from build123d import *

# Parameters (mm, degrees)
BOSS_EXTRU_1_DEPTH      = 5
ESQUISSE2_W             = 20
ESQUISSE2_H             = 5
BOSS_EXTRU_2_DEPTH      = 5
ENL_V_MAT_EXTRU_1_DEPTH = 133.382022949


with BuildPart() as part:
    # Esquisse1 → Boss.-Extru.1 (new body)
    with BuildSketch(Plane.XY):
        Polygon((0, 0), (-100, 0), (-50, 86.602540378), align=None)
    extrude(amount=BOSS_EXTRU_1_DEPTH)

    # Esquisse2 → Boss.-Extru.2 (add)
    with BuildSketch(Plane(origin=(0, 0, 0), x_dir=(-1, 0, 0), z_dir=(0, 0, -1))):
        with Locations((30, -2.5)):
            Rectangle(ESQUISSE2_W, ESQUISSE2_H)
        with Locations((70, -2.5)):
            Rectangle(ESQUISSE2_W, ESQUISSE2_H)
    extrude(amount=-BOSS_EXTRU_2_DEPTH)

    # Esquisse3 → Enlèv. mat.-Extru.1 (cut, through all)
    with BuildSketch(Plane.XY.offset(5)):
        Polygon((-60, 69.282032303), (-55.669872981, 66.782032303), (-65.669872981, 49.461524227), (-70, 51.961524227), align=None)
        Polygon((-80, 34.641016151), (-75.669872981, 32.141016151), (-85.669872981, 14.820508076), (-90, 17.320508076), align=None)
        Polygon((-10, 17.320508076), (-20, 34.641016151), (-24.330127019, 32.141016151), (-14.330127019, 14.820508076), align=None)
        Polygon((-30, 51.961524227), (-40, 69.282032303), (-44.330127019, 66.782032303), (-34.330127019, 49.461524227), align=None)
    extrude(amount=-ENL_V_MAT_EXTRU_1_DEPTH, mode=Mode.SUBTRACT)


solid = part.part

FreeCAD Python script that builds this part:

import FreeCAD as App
import Part
import Sketcher
Q = App.Units.Quantity


def add_polygon(sketch, points):
    """Adds a closed chain of lines whose ends are joined by coincident constraints."""
    first, n = sketch.GeometryCount, len(points)
    for a, b in zip(points, points[1:] + points[:1]):
        sketch.addGeometry(Part.LineSegment(App.Vector(*a, 0), App.Vector(*b, 0)), False)
    for i in range(n):
        sketch.addConstraint(Sketcher.Constraint("Coincident", first + i, 2, first + (i + 1) % n, 1))

doc = App.newDocument("Part")
params = doc.addObject("Spreadsheet::Sheet", "Params")
for row, (alias, value) in enumerate([
    ("sketch1_width", "100 mm"),
    ("pad1_length", "5 mm"),
    ("sketch2_width", "20 mm"),
    ("sketch2_height", "5 mm"),
    ("pad2_length", "5 mm"),
    ("sketch3_length", "5 mm"),
    ("sketch3_length2", "20 mm"),
], start=1):
    params.set(f"A{row}", alias)
    params.set(f"B{row}", "=" + value)
    params.setAlias(f"B{row}", alias)

body = doc.addObject("PartDesign::Body", "Body")

# Sketch on XY plane
sketch1 = body.newObject("Sketcher::SketchObject", "Sketch")
sketch1.AttachmentSupport = (doc.getObject("XY_Plane"), [""])
sketch1.MapMode = "FlatFace"
add_polygon(sketch1, [(-100, 0), (0, 0), (-50, 87)])  # lines 0-2
sketch1.addConstraint([
    Sketcher.Constraint("Horizontal", 0),
    Sketcher.Constraint("Coincident", 0, 2, -1, 1),
    Sketcher.Constraint("Equal", 1, 2),
    Sketcher.Constraint("DistanceX", 0, 1, 0, 2, 100.0),
    Sketcher.Constraint("Angle", 1, Q("120 deg")),
])
sketch1.setExpression("Constraints[6]", "Params.sketch1_width")
pad1 = body.newObject("PartDesign::Pad", "Pad")
pad1.Profile = sketch1
pad1.setExpression("Length", "Params.pad1_length")

# Sketch on XY plane
sketch2 = body.newObject("Sketcher::SketchObject", "Sketch001")
sketch2.AttachmentSupport = (doc.getObject("XY_Plane"), [""])
sketch2.MapMode = "FlatFace"
add_polygon(sketch2, [(-20, 0), (-20, -5), (-40, -5), (-40, 0)])  # lines 0-3
add_polygon(sketch2, [(-60, 0), (-60, -5), (-80, -5), (-80, 0)])  # lines 4-7
sketch2.addConstraint([
    Sketcher.Constraint("Vertical", 0),
    Sketcher.Constraint("Horizontal", 1),
    Sketcher.Constraint("Vertical", 2),
    Sketcher.Constraint("Horizontal", 3),
    Sketcher.Constraint("Vertical", 4),
    Sketcher.Constraint("Horizontal", 5),
    Sketcher.Constraint("Vertical", 6),
    Sketcher.Constraint("Horizontal", 7),
    Sketcher.Constraint("PointOnObject", 2, 2, -1),
    Sketcher.Constraint("PointOnObject", 6, 2, -1),
    Sketcher.Constraint("Horizontal", 1, 2, 4, 2),
    Sketcher.Constraint("Equal", 3, 5),
    Sketcher.Constraint("DistanceX", 1, 2, 1, 1, 20.0),
    Sketcher.Constraint("DistanceY", 0, 2, 0, 1, 5.0),
    Sketcher.Constraint("DistanceX", 0, 2, -1, 1, 20.0),
    Sketcher.Constraint("DistanceX", 4, 2, -1, 1, 60.0),
])
sketch2.setExpression("Constraints[20]", "Params.sketch2_width")
sketch2.setExpression("Constraints[21]", "Params.sketch2_height")
pad2 = body.newObject("PartDesign::Pad", "Pad001")
pad2.Profile = sketch2
pad2.setExpression("Length", "Params.pad2_length")

# Sketch on XY plane
sketch3 = body.newObject("Sketcher::SketchObject", "Sketch002")
sketch3.AttachmentSupport = (doc.getObject("XY_Plane"), [""])
sketch3.MapMode = "FlatFace"
sketch3.AttachmentOffset = App.Placement(App.Vector(0, 0, 5), App.Rotation())
add_polygon(sketch3, [(-56, 67), (-60, 69), (-70, 52), (-66, 49)])  # lines 0-3
add_polygon(sketch3, [(-76, 32), (-80, 35), (-90, 17), (-86, 15)])  # lines 4-7
add_polygon(sketch3, [(-10, 17), (-20, 35), (-24, 32), (-14, 15)])  # lines 8-11
add_polygon(sketch3, [(-30, 52), (-40, 69), (-44, 67), (-34, 49)])  # lines 12-15
sketch3.addConstraint([
    Sketcher.Constraint("Perpendicular", 0, 1),
    Sketcher.Constraint("Perpendicular", 1, 2),
    Sketcher.Constraint("Perpendicular", 2, 3),
    Sketcher.Constraint("Perpendicular", 3, 4),
    Sketcher.Constraint("Perpendicular", 4, 5),
    Sketcher.Constraint("Perpendicular", 5, 6),
    Sketcher.Constraint("Perpendicular", 6, 7),
    Sketcher.Constraint("Perpendicular", 8, 9),
    Sketcher.Constraint("Perpendicular", 9, 10),
    Sketcher.Constraint("Perpendicular", 10, 11),
    Sketcher.Constraint("Perpendicular", 11, 12),
    Sketcher.Constraint("Perpendicular", 12, 13),
    Sketcher.Constraint("Perpendicular", 13, 14),
    Sketcher.Constraint("Perpendicular", 14, 15),
    Sketcher.Constraint("Horizontal", 4, 2, 8, 2),
    Sketcher.Constraint("Horizontal", 7, 2, 9, 2),
    Sketcher.Constraint("Horizontal", 6, 2, 10, 2),
    Sketcher.Constraint("Horizontal", 0, 2, 12, 2),
    Sketcher.Constraint("Horizontal", 3, 2, 13, 2),
    Sketcher.Constraint("Horizontal", 2, 2, 14, 2),
    Sketcher.Constraint("Equal", 2, 4),
    Sketcher.Constraint("Equal", 3, 5),
    Sketcher.Constraint("Equal", 7, 8),
    Sketcher.Constraint("Angle", 0, Q("150 deg")),
    Sketcher.Constraint("Distance", 0, 5.0),
    Sketcher.Constraint("Distance", 1, 20.0),
    Sketcher.Constraint("DistanceX", 0, 2, -1, 1, 60.0),
    Sketcher.Constraint("DistanceX", 4, 2, -1, 1, 80.0),
    Sketcher.Constraint("DistanceX", 8, 2, -1, 1, 20.0),
    Sketcher.Constraint("DistanceX", 12, 2, -1, 1, 40.0),
    Sketcher.Constraint("DistanceY", -1, 1, 5, 2, 17.320508),
    Sketcher.Constraint("DistanceY", 4, 2, 1, 2, 17.320508),
])
sketch3.setExpression("Constraints[40]", "Params.sketch3_length")
sketch3.setExpression("Constraints[41]", "Params.sketch3_length2")
pocket1 = body.newObject("PartDesign::Pocket", "Pocket")
pocket1.Profile = sketch3
pocket1.Type = "ThroughAll"

doc.recompute()
